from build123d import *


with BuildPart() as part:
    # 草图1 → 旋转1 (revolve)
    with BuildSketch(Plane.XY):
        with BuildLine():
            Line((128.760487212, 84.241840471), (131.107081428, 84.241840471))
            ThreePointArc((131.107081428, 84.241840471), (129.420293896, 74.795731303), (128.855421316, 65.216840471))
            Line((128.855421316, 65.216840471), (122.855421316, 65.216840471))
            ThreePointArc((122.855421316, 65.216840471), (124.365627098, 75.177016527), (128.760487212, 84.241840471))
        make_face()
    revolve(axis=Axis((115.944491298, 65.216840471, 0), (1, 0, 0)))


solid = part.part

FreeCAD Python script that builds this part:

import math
import FreeCAD as App
import Part
import Sketcher

doc = App.newDocument("Part")
body = doc.addObject("PartDesign::Body", "Body")

# Sketch on XY plane
sketch1 = body.newObject("Sketcher::SketchObject", "Sketch")
sketch1.AttachmentSupport = (doc.getObject("XY_Plane"), [""])
sketch1.MapMode = "FlatFace"
sketch1.addGeometry(Part.LineSegment(App.Vector(131.107081, 84.24184, 0), App.Vector(128.760487, 84.24184, 0)), False)
sketch1.addGeometry(Part.ArcOfCircle(Part.Circle(App.Vector(156.455421, 65.21684, 0), App.Vector(0, 0, 1), 33.6), math.radians(145.51293), math.radians(180)), False)
sketch1.addGeometry(Part.LineSegment(App.Vector(122.855421, 65.21684, 0), App.Vector(128.855421, 65.21684, 0)), False)
sketch1.addGeometry(Part.ArcOfCircle(Part.Circle(App.Vector(210.355421, 65.21684, 0), App.Vector(0, 0, 1), 81.5), math.radians(166.500576), math.radians(180)), False)
sketch1.addGeometry(Part.LineSegment(App.Vector(122.855421, 65.21684, 0), App.Vector(210.355421, 65.21684, 0)), True)  # axis
sketch1.addConstraint(Sketcher.Constraint("Coincident", 0, 2, 1, 1))
sketch1.addConstraint(Sketcher.Constraint("Coincident", 1, 2, 2, 1))
sketch1.addConstraint(Sketcher.Constraint("Coincident", 2, 2, 3, 2))
sketch1.addConstraint(Sketcher.Constraint("Coincident", 3, 1, 0, 1))
sketch1.addConstraint(Sketcher.Constraint("Horizontal", 0))
sketch1.addConstraint(Sketcher.Constraint("Horizontal", 2))
sketch1.addConstraint(Sketcher.Constraint("Horizontal", 4))
sketch1.addConstraint(Sketcher.Constraint("Coincident", 4, 1, 1, 2))
sketch1.addConstraint(Sketcher.Constraint("Coincident", 4, 2, 3, 3))
sketch1.addConstraint(Sketcher.Constraint("Horizontal", 1, 3, 3, 3))
sketch1.addConstraint(Sketcher.Constraint("Radius", 1, 33.6))
sketch1.addConstraint(Sketcher.Constraint("Radius", 3, 81.5))
sketch1.addConstraint(Sketcher.Constraint("DistanceX", 2, 1, 2, 2, 6.0))
sketch1.addConstraint(Sketcher.Constraint("DistanceY", 1, 3, 0, 2, 19.025))
sketch1.addConstraint(Sketcher.Constraint("DistanceX", -1, 1, 1, 3, 156.455421))
sketch1.addConstraint(Sketcher.Constraint("DistanceY", -1, 1, 1, 3, 65.21684))
revolution = body.newObject("PartDesign::Revolution", "Revolution")
revolution.Profile = sketch1
revolution.ReferenceAxis = (sketch1, ["Axis0"])
revolution.Angle = 360

doc.recompute()
